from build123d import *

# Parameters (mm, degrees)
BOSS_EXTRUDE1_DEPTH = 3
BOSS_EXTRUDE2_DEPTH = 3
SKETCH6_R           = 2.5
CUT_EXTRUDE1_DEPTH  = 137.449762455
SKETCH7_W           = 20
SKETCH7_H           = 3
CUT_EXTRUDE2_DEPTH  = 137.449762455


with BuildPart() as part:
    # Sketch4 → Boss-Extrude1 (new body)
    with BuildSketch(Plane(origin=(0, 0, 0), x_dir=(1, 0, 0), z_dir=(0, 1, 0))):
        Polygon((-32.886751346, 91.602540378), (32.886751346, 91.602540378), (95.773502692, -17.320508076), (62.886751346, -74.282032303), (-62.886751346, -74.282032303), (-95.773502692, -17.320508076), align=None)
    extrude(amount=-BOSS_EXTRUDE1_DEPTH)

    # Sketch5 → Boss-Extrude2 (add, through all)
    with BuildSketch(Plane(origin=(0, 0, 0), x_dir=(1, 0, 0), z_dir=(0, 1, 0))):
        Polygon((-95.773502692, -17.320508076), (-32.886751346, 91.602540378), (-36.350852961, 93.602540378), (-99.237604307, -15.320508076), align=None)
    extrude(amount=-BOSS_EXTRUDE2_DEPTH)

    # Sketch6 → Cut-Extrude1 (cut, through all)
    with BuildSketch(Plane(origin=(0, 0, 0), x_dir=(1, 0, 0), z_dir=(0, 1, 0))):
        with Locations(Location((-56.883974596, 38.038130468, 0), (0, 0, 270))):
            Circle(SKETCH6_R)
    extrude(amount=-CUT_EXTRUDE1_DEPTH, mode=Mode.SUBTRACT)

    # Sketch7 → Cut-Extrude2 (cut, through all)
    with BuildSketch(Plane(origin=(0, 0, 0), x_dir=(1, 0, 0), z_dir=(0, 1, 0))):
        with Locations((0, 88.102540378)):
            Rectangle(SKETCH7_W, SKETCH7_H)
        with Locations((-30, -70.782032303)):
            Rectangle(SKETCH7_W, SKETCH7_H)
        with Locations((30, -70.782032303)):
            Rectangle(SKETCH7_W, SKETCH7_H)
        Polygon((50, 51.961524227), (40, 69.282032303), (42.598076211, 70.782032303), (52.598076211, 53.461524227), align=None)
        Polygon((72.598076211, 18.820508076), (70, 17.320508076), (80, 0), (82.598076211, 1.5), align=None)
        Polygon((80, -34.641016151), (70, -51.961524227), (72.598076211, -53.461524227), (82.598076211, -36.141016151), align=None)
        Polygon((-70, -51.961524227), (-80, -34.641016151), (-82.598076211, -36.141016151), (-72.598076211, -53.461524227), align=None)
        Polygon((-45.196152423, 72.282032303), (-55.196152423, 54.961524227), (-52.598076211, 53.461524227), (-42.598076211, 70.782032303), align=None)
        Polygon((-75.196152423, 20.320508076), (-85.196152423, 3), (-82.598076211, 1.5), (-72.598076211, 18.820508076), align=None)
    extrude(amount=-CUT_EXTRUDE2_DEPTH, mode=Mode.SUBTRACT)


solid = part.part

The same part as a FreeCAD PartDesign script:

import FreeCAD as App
import Part
import Sketcher
from FreeCAD import Vector
Q = App.Units.Quantity

doc = App.newDocument("Part")
body = doc.addObject("PartDesign::Body", "Body")

# Sketch on XZ plane
sketch1 = doc.addObject("Sketcher::SketchObject", "Sketch")
body.addObject(sketch1)
sketch1.AttachmentSupport = (doc.XZ_Plane, [""])
sketch1.MapMode = "FlatFace"
sketch1.addGeometry([
    Part.LineSegment(Vector(33, -92, 0), Vector(-33, -92, 0)),  # 0
    Part.LineSegment(Vector(-33, -92, 0), Vector(-96, 17, 0)),  # 1
    Part.LineSegment(Vector(-96, 17, 0), Vector(-63, 74, 0)),  # 2
    Part.LineSegment(Vector(-63, 74, 0), Vector(63, 74, 0)),  # 3
    Part.LineSegment(Vector(63, 74, 0), Vector(96, 17, 0)),  # 4
    Part.LineSegment(Vector(96, 17, 0), Vector(33, -92, 0)),  # 5
], False)
sketch1.addConstraint([
    Sketcher.Constraint("Coincident", 0, 2, 1, 1),
    Sketcher.Constraint("Coincident", 1, 2, 2, 1),
    Sketcher.Constraint("Coincident", 2, 2, 3, 1),
    Sketcher.Constraint("Coincident", 3, 2, 4, 1),
    Sketcher.Constraint("Coincident", 4, 2, 5, 1),
    Sketcher.Constraint("Coincident", 5, 2, 0, 1),
    Sketcher.Constraint("Horizontal", 0),
    Sketcher.Constraint("Horizontal", 3),
    Sketcher.Constraint("Symmetric", 1, 2, 4, 2, -2),
    Sketcher.Constraint("Parallel", 1, 4),
    Sketcher.Constraint("Parallel", 2, 5),
    Sketcher.Constraint("Equal", 2, 4),
    Sketcher.Constraint("Angle", 1, Q("120 deg")),
    Sketcher.Constraint("DistanceX", 2, 2, 0, 2, Q("30 mm")),
    Sketcher.Constraint("DistanceX", 0, 2, 0, 1, Q("65.773503 mm")),
    Sketcher.Constraint("DistanceY", 0, 2, -1, 1, Q("91.60254 mm")),
    Sketcher.Constraint("DistanceY", -1, 1, 1, 2, Q("17.320508 mm")),
])
pad1 = doc.addObject("PartDesign::Pad", "Pad")
body.addObject(pad1)
pad1.Profile = sketch1
pad1.Length = 3

# Sketch on XZ plane
sketch2 = doc.addObject("Sketcher::SketchObject", "Sketch001")
body.addObject(sketch2)
sketch2.AttachmentSupport = (doc.XZ_Plane, [""])
sketch2.MapMode = "FlatFace"
sketch2.addGeometry([
    Part.LineSegment(Vector(-95.8, 17.3, 0), Vector(-32.9, -91.6, 0)),
    Part.LineSegment(Vector(-32.9, -91.6, 0), Vector(-36.4, -93.6, 0)),
    Part.LineSegment(Vector(-36.4, -93.6, 0), Vector(-99.2, 15.3, 0)),
    Part.LineSegment(Vector(-99.2, 15.3, 0), Vector(-95.8, 17.3, 0)),
], False)
sketch2.addConstraint([
    Sketcher.Constraint("Coincident", 0, 2, 1, 1),
    Sketcher.Constraint("Coincident", 1, 2, 2, 1),
    Sketcher.Constraint("Coincident", 2, 2, 3, 1),
    Sketcher.Constraint("Coincident", 3, 2, 0, 1),
    Sketcher.Constraint("Perpendicular", 0, 1),
    Sketcher.Constraint("Perpendicular", 1, 2),
    Sketcher.Constraint("Perpendicular", 2, 3),
    Sketcher.Constraint("Angle", 0, Q("-60 deg")),
    Sketcher.Constraint("Distance", 1, Q("4 mm")),
    Sketcher.Constraint("DistanceX", 0, 2, -1, 1, Q("32.886751 mm")),
    Sketcher.Constraint("DistanceY", 0, 2, -1, 1, Q("91.60254 mm")),
    Sketcher.Constraint("DistanceY", -1, 1, 2, 2, Q("15.320508 mm")),
])
pad2 = doc.addObject("PartDesign::Pad", "Pad001")
body.addObject(pad2)
pad2.Profile = sketch2
pad2.Length = 3

# Sketch on XZ plane
sketch3 = doc.addObject("Sketcher::SketchObject", "Sketch002")
body.addObject(sketch3)
sketch3.AttachmentSupport = (doc.XZ_Plane, [""])
sketch3.MapMode = "FlatFace"
sketch3.addGeometry(Part.Circle(Vector(-56.9, -38, 0), Vector(0, 0, 1), 2.5), False)
sketch3.addConstraint([
    Sketcher.Constraint("Diameter", 0, Q("5 mm")),
    Sketcher.Constraint("DistanceY", 0, 3, -1, 1, Q("38.03813 mm")),
    Sketcher.Constraint("DistanceX", 0, 3, -1, 1, Q("56.883975 mm")),
])
pocket1 = doc.addObject("PartDesign::Pocket", "Pocket")
body.addObject(pocket1)
pocket1.Profile = sketch3
pocket1.Type = "ThroughAll"
pocket1.Reversed = True

# Sketch on XZ plane
sketch4 = doc.addObject("Sketcher::SketchObject", "Sketch003")
body.addObject(sketch4)
sketch4.AttachmentSupport = (doc.XZ_Plane, [""])
sketch4.MapMode = "FlatFace"
sketch4.addGeometry([
    Part.LineSegment(Vector(-10, -89.6, 0), Vector(-10, -86.6, 0)),  # 0
    Part.LineSegment(Vector(-10, -86.6, 0), Vector(10, -86.6, 0)),  # 1
    Part.LineSegment(Vector(10, -86.6, 0), Vector(10, -89.6, 0)),  # 2
    Part.LineSegment(Vector(10, -89.6, 0), Vector(-10, -89.6, 0)),  # 3
    Part.LineSegment(Vector(-40, 69.3, 0), Vector(-40, 72.3, 0)),  # 4
    Part.LineSegment(Vector(-40, 72.3, 0), Vector(-20, 72.3, 0)),  # 5
    Part.LineSegment(Vector(-20, 72.3, 0), Vector(-20, 69.3, 0)),  # 6
    Part.LineSegment(Vector(-20, 69.3, 0), Vector(-40, 69.3, 0)),  # 7
    Part.LineSegment(Vector(20, 69.3, 0), Vector(20, 72.3, 0)),  # 8
    Part.LineSegment(Vector(20, 72.3, 0), Vector(40, 72.3, 0)),  # 9
    Part.LineSegment(Vector(40, 72.3, 0), Vector(40, 69.3, 0)),  # 10
    Part.LineSegment(Vector(40, 69.3, 0), Vector(20, 69.3, 0)),  # 11
    Part.LineSegment(Vector(40, -69.3, 0), Vector(50, -52, 0)),  # 12
    Part.LineSegment(Vector(50, -52, 0), Vector(52.6, -53.5, 0)),  # 13
    Part.LineSegment(Vector(52.6, -53.5, 0), Vector(42.6, -70.8, 0)),  # 14
    Part.LineSegment(Vector(42.6, -70.8, 0), Vector(40, -69.3, 0)),  # 15
    Part.LineSegment(Vector(72.6, -18.8, 0), Vector(70, -17.3, 0)),  # 16
    Part.LineSegment(Vector(70, -17.3, 0), Vector(80, 0, 0)),  # 17
    Part.LineSegment(Vector(80, 0, 0), Vector(82.6, -1.5, 0)),  # 18
    Part.LineSegment(Vector(82.6, -1.5, 0), Vector(72.6, -18.8, 0)),  # 19
    Part.LineSegment(Vector(80, 34.6, 0), Vector(70, 52, 0)),  # 20
    Part.LineSegment(Vector(70, 52, 0), Vector(72.6, 53.5, 0)),  # 21
    Part.LineSegment(Vector(72.6, 53.5, 0), Vector(82.6, 36.1, 0)),  # 22
    Part.LineSegment(Vector(82.6, 36.1, 0), Vector(80, 34.6, 0)),  # 23
    Part.LineSegment(Vector(-70, 52, 0), Vector(-80, 34.6, 0)),  # 24
    Part.LineSegment(Vector(-80, 34.6, 0), Vector(-82.6, 36.1, 0)),  # 25
    Part.LineSegment(Vector(-82.6, 36.1, 0), Vector(-72.6, 53.5, 0)),  # 26
    Part.LineSegment(Vector(-72.6, 53.5, 0), Vector(-70, 52, 0)),  # 27
    Part.LineSegment(Vector(-45.2, -72.3, 0), Vector(-55.2, -55, 0)),  # 28
    Part.LineSegment(Vector(-55.2, -55, 0), Vector(-52.6, -53.5, 0)),  # 29
    Part.LineSegment(Vector(-52.6, -53.5, 0), Vector(-42.6, -70.8, 0)),  # 30
    Part.LineSegment(Vector(-42.6, -70.8, 0), Vector(-45.2, -72.3, 0)),  # 31
    Part.LineSegment(Vector(-75.2, -20.3, 0), Vector(-85.2, -3, 0)),  # 32
    Part.LineSegment(Vector(-85.2, -3, 0), Vector(-82.6, -1.5, 0)),  # 33
    Part.LineSegment(Vector(-82.6, -1.5, 0), Vector(-72.6, -18.8, 0)),  # 34
    Part.LineSegment(Vector(-72.6, -18.8, 0), Vector(-75.2, -20.3, 0)),  # 35
], False)
sketch4.addConstraint([
    Sketcher.Constraint("Coincident", 0, 2, 1, 1),
    Sketcher.Constraint("Coincident", 1, 2, 2, 1),
    Sketcher.Constraint("Coincident", 2, 2, 3, 1),
    Sketcher.Constraint("Coincident", 3, 2, 0, 1),
    Sketcher.Constraint("Coincident", 4, 2, 5, 1),
    Sketcher.Constraint("Coincident", 5, 2, 6, 1),
    Sketcher.Constraint("Coincident", 6, 2, 7, 1),
    Sketcher.Constraint("Coincident", 7, 2, 4, 1),
    Sketcher.Constraint("Coincident", 8, 2, 9, 1),
    Sketcher.Constraint("Coincident", 9, 2, 10, 1),
    Sketcher.Constraint("Coincident", 10, 2, 11, 1),
    Sketcher.Constraint("Coincident", 11, 2, 8, 1),
    Sketcher.Constraint("Coincident", 12, 2, 13, 1),
    Sketcher.Constraint("Coincident", 13, 2, 14, 1),
    Sketcher.Constraint("Coincident", 14, 2, 15, 1),
    Sketcher.Constraint("Coincident", 15, 2, 12, 1),
    Sketcher.Constraint("Coincident", 16, 2, 17, 1),
    Sketcher.Constraint("Coincident", 17, 2, 18, 1),
    Sketcher.Constraint("Coincident", 18, 2, 19, 1),
    Sketcher.Constraint("Coincident", 19, 2, 16, 1),
    Sketcher.Constraint("Coincident", 20, 2, 21, 1),
    Sketcher.Constraint("Coincident", 21, 2, 22, 1),
    Sketcher.Constraint("Coincident", 22, 2, 23, 1),
    Sketcher.Constraint("Coincident", 23, 2, 20, 1),
    Sketcher.Constraint("Coincident", 24, 2, 25, 1),
    Sketcher.Constraint("Coincident", 25, 2, 26, 1),
    Sketcher.Constraint("Coincident", 26, 2, 27, 1),
    Sketcher.Constraint("Coincident", 27, 2, 24, 1),
    Sketcher.Constraint("Coincident", 28, 2, 29, 1),
    Sketcher.Constraint("Coincident", 29, 2, 30, 1),
    Sketcher.Constraint("Coincident", 30, 2, 31, 1),
    Sketcher.Constraint("Coincident", 31, 2, 28, 1),
    Sketcher.Constraint("Coincident", 32, 2, 33, 1),
    Sketcher.Constraint("Coincident", 33, 2, 34, 1),
    Sketcher.Constraint("Coincident", 34, 2, 35, 1),
    Sketcher.Constraint("Coincident", 35, 2, 32, 1),
    Sketcher.Constraint("Vertical", 0),
    Sketcher.Constraint("Horizontal", 1),
    Sketcher.Constraint("Vertical", 2),
    Sketcher.Constraint("Horizontal", 3),
    Sketcher.Constraint("Vertical", 4),
    Sketcher.Constraint("Horizontal", 5),
    Sketcher.Constraint("Vertical", 6),
    Sketcher.Constraint("Horizontal", 7),
    Sketcher.Constraint("Vertical", 8),
    Sketcher.Constraint("Horizontal", 9),
    Sketcher.Constraint("Vertical", 10),
    Sketcher.Constraint("Horizontal", 11),
    Sketcher.Constraint("Symmetric", 7, 2, 15, 2, -1, 1),
    Sketcher.Constraint("Symmetric", 5, 2, 8, 2, -2),
    Sketcher.Constraint("Symmetric", 7, 2, 10, 2, -2),
    Sketcher.Constraint("Symmetric", 23, 2, 24, 2, -2),
    Sketcher.Constraint("Symmetric", 22, 2, 25, 2, -2),
    Sketcher.Constraint("Symmetric", 21, 2, 26, 2, -2),
    Sketcher.Constraint("Symmetric", 20, 2, 27, 2, -2),
    Sketcher.Constraint("Symmetric", 13, 2, 29, 2, -2),
    Sketcher.Constraint("Symmetric", 14, 2, 30, 2, -2),
    Sketcher.Constraint("Symmetric", 18, 2, 33, 2, -2),
    Sketcher.Constraint("Symmetric", 19, 2, 34, 2, -2),
    Sketcher.Constraint("PointOnObject", 17, 2, -1),
    Sketcher.Constraint("Perpendicular", 12, 13),
    Sketcher.Constraint("Perpendicular", 13, 14),
    Sketcher.Constraint("Perpendicular", 14, 15),
    Sketcher.Constraint("Parallel", 15, 16),
    Sketcher.Constraint("Perpendicular", 16, 17),
    Sketcher.Constraint("Perpendicular", 17, 18),
    Sketcher.Constraint("Perpendicular", 18, 19),
    Sketcher.Constraint("Perpendicular", 20, 21),
    Sketcher.Constraint("Perpendicular", 21, 22),
    Sketcher.Constraint("Perpendicular", 22, 23),
    Sketcher.Constraint("Parallel", 19, 24),
    Sketcher.Constraint("Perpendicular", 23, 28),
    Sketcher.Constraint("Perpendicular", 28, 29),
    Sketcher.Constraint("Perpendicular", 30, 31),
    Sketcher.Constraint("Perpendicular", 31, 32),
    Sketcher.Constraint("Perpendicular", 32, 33),
    Sketcher.Constraint("Perpendicular", 34, 35),
    Sketcher.Constraint("Vertical", 16, 2, 20, 2),
    Sketcher.Constraint("Vertical", 19, 2, 21, 2),
    Sketcher.Constraint("Vertical", 18, 2, 22, 2),
    Sketcher.Constraint("Equal", 3, 5),
    Sketcher.Constraint("Equal", 2, 4),
    Sketcher.Constraint("Equal", 15, 16),
    Sketcher.Constraint("Equal", 14, 17),
    Sketcher.Constraint("Equal", 27, 29),
    Sketcher.Constraint("Equal", 31, 33),
    Sketcher.Constraint("DistanceX", 1, 1, 1, 2, Q("20 mm")),
    Sketcher.Constraint("DistanceY", 0, 1, 0, 2, Q("3 mm")),
    Sketcher.Constraint("Angle", 12, Q("60 deg")),
    Sketcher.Constraint("Distance", 12, Q("20 mm")),
    Sketcher.Constraint("Distance", 13, Q("3 mm")),
    Sketcher.Constraint("DistanceX", 0, 2, -1, 1, Q("10 mm")),
    Sketcher.Constraint("DistanceX", 4, 2, -1, 1, Q("40 mm")),
    Sketcher.Constraint("DistanceX", -1, 1, 16, 2, Q("70 mm")),
    Sketcher.Constraint("DistanceY", 0, 2, -1, 1, Q("86.60254 mm")),
    Sketcher.Constraint("DistanceY", 1, 2, 14, 2, Q("15.820508 mm")),
    Sketcher.Constraint("DistanceY", 20, 2, 10, 2, Q("17.320508 mm")),
])
pocket2 = doc.addObject("PartDesign::Pocket", "Pocket001")
body.addObject(pocket2)
pocket2.Profile = sketch4
pocket2.Type = "ThroughAll"
pocket2.Reversed = True

doc.recompute()
